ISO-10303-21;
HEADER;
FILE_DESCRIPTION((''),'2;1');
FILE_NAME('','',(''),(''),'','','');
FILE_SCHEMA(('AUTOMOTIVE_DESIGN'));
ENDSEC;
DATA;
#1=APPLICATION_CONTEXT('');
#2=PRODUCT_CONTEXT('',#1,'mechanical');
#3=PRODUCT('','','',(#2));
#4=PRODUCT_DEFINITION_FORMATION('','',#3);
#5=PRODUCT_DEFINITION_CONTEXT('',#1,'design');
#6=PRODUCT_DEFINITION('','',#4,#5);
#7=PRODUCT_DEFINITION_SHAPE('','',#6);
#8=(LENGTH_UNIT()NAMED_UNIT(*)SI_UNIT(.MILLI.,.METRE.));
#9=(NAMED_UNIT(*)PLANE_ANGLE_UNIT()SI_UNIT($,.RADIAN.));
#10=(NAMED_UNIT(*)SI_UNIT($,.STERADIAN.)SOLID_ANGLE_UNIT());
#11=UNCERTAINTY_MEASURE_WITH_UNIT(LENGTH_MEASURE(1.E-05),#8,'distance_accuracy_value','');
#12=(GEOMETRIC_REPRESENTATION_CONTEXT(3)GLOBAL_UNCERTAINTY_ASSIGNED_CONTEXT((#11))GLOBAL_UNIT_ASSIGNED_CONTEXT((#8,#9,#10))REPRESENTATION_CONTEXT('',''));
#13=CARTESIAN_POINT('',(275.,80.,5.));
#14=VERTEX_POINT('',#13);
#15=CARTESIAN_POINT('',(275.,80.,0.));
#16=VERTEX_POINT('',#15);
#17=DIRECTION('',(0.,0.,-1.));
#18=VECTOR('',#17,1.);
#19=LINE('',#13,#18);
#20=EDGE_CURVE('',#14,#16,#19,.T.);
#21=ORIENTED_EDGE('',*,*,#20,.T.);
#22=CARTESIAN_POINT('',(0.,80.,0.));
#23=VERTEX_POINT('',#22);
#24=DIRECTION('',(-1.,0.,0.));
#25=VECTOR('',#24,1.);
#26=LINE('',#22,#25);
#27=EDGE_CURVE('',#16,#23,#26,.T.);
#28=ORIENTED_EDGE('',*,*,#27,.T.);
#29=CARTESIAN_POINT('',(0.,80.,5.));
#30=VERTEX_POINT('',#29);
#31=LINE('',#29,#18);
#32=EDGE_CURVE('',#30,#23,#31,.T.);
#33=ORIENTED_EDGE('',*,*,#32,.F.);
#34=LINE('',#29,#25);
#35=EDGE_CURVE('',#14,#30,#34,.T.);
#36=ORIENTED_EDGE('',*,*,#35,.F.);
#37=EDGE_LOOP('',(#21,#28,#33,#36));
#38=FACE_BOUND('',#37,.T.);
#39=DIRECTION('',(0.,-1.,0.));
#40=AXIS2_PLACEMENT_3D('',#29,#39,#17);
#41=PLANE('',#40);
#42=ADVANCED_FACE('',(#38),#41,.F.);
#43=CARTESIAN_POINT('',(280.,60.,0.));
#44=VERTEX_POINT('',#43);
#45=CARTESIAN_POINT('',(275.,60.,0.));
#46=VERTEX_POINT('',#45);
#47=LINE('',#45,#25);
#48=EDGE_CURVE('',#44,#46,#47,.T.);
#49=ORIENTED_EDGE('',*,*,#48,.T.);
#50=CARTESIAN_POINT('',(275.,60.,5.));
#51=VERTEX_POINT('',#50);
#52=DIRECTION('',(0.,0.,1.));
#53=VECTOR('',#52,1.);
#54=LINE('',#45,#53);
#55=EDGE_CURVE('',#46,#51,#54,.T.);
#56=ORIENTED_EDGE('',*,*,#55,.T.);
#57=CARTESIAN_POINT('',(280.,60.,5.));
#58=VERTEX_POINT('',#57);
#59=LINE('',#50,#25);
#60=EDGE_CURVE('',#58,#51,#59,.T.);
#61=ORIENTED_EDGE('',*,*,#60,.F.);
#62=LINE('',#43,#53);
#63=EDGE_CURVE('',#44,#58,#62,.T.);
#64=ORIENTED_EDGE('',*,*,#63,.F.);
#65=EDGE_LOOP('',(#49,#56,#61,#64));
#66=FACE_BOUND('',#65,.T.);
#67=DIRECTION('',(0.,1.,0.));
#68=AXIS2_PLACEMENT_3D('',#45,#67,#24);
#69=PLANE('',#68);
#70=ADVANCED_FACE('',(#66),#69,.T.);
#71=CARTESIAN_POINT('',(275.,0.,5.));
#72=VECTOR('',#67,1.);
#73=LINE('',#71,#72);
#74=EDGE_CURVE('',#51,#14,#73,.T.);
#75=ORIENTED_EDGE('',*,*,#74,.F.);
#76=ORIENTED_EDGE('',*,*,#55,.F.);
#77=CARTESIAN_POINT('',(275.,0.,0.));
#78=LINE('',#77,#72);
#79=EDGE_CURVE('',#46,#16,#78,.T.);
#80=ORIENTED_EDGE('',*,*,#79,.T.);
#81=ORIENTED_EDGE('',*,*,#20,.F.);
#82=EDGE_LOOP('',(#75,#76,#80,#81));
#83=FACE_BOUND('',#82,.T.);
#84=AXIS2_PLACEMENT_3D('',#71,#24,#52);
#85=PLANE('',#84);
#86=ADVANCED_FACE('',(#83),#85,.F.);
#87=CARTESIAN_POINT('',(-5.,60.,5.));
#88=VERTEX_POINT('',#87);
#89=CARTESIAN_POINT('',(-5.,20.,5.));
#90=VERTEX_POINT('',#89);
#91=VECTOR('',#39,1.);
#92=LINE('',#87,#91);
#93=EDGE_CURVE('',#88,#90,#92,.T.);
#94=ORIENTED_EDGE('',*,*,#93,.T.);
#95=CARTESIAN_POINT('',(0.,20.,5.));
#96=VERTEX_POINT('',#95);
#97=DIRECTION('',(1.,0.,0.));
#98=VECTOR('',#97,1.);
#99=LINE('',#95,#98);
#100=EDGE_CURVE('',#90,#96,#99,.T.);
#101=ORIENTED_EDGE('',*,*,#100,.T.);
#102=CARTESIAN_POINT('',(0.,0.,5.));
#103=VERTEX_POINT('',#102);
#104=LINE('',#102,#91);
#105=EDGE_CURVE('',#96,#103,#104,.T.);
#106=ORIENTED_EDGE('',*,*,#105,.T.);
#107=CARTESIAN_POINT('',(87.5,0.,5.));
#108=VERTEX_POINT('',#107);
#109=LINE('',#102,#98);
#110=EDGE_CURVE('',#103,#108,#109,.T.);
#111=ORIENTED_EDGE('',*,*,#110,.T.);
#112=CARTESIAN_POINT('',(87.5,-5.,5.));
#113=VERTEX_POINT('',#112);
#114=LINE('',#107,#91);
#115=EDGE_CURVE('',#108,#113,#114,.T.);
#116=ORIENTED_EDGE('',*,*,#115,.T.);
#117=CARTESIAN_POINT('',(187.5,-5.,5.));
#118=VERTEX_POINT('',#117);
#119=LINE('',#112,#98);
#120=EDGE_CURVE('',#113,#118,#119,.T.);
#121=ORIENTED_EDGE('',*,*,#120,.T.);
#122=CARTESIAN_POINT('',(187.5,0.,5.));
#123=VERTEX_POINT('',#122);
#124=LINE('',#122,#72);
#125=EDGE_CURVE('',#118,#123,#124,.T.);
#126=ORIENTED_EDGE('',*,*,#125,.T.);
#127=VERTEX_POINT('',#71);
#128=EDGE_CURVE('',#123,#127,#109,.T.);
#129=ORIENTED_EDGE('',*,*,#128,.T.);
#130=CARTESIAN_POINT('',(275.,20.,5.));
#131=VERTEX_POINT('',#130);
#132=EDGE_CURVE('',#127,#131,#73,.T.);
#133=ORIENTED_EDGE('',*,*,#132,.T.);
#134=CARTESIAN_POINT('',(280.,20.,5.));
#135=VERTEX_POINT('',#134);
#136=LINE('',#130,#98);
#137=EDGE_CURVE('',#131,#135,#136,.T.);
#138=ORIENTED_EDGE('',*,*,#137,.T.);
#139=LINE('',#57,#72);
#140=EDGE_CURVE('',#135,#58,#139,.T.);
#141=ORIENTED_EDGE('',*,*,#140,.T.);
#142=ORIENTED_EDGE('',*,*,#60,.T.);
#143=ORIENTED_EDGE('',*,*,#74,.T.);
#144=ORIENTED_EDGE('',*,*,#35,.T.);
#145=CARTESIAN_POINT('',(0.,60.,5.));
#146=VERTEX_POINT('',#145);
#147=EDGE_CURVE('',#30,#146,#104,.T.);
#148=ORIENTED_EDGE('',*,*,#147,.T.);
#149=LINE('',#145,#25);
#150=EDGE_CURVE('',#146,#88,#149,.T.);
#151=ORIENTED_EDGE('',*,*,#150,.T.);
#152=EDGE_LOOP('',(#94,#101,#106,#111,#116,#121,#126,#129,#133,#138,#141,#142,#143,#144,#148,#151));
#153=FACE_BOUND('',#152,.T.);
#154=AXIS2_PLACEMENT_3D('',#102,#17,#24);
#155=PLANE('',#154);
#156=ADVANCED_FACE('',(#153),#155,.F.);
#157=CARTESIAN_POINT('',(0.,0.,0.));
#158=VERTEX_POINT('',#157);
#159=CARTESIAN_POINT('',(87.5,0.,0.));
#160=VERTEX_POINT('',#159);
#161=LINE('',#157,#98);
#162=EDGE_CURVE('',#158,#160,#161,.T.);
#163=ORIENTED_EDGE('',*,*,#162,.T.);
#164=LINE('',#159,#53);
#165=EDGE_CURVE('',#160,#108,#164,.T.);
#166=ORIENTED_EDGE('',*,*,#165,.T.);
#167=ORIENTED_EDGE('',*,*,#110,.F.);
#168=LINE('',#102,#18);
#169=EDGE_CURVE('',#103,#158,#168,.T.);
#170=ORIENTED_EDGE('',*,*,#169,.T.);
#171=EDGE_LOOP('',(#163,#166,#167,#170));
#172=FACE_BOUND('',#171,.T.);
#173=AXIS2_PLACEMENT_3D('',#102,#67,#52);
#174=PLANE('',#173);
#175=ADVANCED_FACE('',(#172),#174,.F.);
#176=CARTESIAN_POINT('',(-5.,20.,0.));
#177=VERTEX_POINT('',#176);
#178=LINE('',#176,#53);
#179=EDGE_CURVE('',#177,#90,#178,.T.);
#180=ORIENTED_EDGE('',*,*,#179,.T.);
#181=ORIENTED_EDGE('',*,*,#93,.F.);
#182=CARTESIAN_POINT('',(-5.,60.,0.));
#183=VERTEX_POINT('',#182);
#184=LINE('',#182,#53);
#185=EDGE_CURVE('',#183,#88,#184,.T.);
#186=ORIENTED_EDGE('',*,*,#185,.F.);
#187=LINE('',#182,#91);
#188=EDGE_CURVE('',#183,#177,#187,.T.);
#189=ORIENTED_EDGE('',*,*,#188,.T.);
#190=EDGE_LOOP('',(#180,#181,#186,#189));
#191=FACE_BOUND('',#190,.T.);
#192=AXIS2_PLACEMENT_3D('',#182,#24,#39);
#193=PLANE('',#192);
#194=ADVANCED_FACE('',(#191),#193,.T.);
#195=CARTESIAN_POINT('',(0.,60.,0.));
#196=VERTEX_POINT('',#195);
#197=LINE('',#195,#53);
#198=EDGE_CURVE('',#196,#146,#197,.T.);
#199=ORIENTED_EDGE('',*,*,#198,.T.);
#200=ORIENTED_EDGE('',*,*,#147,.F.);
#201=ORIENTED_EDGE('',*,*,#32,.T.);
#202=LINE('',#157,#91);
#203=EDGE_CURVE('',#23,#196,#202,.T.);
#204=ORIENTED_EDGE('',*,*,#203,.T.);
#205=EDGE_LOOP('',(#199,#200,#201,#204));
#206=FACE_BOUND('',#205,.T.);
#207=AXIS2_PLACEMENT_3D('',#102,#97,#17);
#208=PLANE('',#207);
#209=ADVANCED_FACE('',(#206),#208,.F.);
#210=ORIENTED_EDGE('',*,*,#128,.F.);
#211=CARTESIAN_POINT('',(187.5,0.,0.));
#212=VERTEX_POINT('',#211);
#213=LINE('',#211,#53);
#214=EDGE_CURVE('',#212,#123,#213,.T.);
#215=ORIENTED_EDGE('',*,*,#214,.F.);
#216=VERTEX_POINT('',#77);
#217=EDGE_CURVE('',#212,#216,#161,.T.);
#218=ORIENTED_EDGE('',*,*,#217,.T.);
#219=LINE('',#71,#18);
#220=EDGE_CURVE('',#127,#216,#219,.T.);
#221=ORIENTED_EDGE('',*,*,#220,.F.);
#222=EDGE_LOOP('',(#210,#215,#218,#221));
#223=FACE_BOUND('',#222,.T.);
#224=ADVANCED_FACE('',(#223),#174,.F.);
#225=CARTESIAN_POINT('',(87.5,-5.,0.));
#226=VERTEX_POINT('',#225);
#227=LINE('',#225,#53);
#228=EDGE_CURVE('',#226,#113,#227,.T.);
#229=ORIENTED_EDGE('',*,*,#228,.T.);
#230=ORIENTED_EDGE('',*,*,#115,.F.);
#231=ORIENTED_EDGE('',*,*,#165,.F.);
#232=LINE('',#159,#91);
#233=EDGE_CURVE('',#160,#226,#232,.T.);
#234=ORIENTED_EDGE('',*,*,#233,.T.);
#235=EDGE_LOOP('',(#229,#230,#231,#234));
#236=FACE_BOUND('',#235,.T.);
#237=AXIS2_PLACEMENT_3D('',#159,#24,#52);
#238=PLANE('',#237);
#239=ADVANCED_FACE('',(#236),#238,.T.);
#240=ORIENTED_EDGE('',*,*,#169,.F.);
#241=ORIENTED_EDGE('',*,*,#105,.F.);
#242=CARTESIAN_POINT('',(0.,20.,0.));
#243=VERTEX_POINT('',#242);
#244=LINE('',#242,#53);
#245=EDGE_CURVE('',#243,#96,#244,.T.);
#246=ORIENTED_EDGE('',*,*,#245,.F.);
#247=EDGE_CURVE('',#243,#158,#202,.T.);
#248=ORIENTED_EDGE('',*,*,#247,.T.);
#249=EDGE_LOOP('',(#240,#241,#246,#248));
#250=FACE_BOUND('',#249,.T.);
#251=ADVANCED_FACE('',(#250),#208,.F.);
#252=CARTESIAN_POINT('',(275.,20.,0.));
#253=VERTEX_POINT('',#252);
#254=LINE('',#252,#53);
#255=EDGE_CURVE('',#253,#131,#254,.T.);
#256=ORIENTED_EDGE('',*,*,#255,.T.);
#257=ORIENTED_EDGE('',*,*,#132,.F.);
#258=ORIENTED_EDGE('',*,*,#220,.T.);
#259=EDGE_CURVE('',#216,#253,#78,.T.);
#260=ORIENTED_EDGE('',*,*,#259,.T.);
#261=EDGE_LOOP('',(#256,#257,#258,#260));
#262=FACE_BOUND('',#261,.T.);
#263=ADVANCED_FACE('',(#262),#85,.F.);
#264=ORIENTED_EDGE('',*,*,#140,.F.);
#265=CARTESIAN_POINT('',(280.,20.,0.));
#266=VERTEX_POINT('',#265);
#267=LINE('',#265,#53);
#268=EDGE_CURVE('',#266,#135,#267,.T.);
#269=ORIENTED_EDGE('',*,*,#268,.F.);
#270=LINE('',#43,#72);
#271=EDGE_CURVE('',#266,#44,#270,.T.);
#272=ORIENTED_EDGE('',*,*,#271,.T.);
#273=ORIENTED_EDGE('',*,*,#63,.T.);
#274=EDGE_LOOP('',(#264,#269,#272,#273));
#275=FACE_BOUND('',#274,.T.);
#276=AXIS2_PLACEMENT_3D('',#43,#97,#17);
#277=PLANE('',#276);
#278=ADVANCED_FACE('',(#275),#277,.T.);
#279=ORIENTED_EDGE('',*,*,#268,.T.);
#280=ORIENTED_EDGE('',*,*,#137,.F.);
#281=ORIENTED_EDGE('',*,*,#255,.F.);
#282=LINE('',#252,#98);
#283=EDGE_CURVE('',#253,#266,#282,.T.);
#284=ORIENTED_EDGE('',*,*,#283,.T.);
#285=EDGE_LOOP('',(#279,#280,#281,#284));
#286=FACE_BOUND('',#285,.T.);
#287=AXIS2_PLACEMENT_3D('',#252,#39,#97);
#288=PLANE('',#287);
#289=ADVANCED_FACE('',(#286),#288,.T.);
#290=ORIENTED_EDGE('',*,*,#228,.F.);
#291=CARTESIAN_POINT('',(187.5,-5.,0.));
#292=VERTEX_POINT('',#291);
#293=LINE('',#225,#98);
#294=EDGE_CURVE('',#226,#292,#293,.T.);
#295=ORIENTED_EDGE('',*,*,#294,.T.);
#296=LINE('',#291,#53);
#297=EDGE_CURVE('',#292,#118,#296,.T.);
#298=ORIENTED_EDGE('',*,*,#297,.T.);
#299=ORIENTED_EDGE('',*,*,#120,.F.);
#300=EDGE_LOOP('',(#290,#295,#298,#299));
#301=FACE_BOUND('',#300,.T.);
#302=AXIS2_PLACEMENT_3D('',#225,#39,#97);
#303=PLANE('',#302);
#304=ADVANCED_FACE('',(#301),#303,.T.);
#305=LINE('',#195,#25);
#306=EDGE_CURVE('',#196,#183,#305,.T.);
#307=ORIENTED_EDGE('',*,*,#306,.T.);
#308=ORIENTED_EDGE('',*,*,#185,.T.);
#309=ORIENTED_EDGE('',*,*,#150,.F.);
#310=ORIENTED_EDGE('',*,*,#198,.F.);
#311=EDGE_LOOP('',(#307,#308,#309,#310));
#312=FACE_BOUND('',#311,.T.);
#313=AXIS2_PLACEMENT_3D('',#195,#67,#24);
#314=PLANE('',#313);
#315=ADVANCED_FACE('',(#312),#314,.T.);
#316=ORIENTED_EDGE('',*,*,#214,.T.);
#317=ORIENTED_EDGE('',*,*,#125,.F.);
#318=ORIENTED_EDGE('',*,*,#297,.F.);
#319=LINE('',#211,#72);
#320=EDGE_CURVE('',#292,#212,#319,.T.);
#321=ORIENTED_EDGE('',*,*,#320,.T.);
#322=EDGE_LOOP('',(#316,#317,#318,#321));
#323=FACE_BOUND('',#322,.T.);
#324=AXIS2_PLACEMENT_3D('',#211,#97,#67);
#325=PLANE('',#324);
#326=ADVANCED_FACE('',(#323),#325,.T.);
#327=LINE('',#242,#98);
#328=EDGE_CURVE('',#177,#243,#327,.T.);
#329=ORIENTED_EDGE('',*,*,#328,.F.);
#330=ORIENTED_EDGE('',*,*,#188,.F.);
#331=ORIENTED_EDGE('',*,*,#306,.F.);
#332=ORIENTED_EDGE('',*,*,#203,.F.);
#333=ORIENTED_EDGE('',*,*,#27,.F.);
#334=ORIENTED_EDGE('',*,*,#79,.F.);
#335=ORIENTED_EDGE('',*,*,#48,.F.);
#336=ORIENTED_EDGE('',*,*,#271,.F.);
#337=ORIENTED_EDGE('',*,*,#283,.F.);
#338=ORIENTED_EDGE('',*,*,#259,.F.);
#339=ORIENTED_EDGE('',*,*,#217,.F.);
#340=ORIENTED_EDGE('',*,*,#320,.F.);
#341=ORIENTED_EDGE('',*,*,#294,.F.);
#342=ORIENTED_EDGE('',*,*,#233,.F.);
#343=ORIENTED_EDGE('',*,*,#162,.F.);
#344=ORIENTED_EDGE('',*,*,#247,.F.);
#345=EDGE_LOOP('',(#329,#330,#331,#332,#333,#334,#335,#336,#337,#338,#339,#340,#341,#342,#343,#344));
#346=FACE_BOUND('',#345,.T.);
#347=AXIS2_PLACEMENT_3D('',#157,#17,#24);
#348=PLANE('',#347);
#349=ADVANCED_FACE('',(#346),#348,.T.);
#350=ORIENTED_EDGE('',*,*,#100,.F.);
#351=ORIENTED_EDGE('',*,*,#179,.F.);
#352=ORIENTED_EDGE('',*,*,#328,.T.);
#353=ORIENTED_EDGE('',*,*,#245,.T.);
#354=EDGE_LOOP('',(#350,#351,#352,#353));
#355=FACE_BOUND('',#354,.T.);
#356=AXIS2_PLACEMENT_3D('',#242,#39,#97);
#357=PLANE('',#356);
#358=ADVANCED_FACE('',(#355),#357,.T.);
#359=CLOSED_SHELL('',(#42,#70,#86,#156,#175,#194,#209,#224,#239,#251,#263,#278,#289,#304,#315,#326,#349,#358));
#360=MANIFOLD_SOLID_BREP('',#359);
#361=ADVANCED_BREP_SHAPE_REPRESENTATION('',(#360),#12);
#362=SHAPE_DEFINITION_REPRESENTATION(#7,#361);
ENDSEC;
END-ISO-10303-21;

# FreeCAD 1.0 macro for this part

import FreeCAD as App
import Part
import Sketcher

V = App.Vector


def add_polygon(sketch, points):
    """Adds a closed chain of lines whose ends are joined by coincident constraints."""
    first, n = sketch.GeometryCount, len(points)
    for a, b in zip(points, points[1:] + points[:1]):
        sketch.addGeometry(Part.LineSegment(App.Vector(*a, 0), App.Vector(*b, 0)), False)
    for i in range(n):
        sketch.addConstraint(Sketcher.Constraint("Coincident", first + i, 2, first + (i + 1) % n, 1))

doc = App.newDocument("Part")
params = doc.addObject("Spreadsheet::Sheet", "Params")
for row, (alias, value) in enumerate([
    ("sketch1_width", "275 mm"),
    ("sketch1_height", "80 mm"),
    ("pad1_length", "5 mm"),
    ("sketch2_width", "100 mm"),
    ("sketch2_height", "5 mm"),
    ("pad2_length", "5 mm"),
    ("sketch3_width", "5 mm"),
    ("sketch3_height", "40 mm"),
], start=1):
    params.set(f"A{row}", alias)
    params.set(f"B{row}", "=" + value)
    params.setAlias(f"B{row}", alias)

body = doc.addObject("PartDesign::Body", "Body")

# Sketch on XY plane
sketch1 = doc.addObject("Sketcher::SketchObject", "Sketch")
body.addObject(sketch1)
sketch1.AttachmentSupport = (doc.XY_Plane, [""])
sketch1.MapMode = "FlatFace"
add_polygon(sketch1, [(0, 80), (0, 0), (275, 0), (275, 80)])  # lines 0-3
sketch1.addConstraint(Sketcher.Constraint("Vertical", 0))
sketch1.addConstraint(Sketcher.Constraint("Horizontal", 1))
sketch1.addConstraint(Sketcher.Constraint("Vertical", 2))
sketch1.addConstraint(Sketcher.Constraint("Horizontal", 3))
sketch1.addConstraint(Sketcher.Constraint("Coincident", 0, 2, -1, 1))
sketch1.addConstraint(Sketcher.Constraint("DistanceX", 1, 1, 1, 2, 275.0))
sketch1.addConstraint(Sketcher.Constraint("DistanceY", 0, 2, 0, 1, 80.0))
sketch1.setExpression("Constraints[9]", "Params.sketch1_width")
sketch1.setExpression("Constraints[10]", "Params.sketch1_height")
pad1 = doc.addObject("PartDesign::Pad", "Pad")
body.addObject(pad1)
pad1.Profile = sketch1
pad1.setExpression("Length", "Params.pad1_length")

# Sketch on XY plane
sketch2 = doc.addObject("Sketcher::SketchObject", "Sketch001")
body.addObject(sketch2)
sketch2.AttachmentSupport = (doc.XY_Plane, [""])
sketch2.MapMode = "FlatFace"
sketch2.AttachmentOffset = App.Placement(V(0, 0, 5), App.Rotation())
add_polygon(sketch2, [(88, 0), (88, -5), (188, -5), (188, 0)])  # lines 0-3
sketch2.addConstraint(Sketcher.Constraint("Vertical", 0))
sketch2.addConstraint(Sketcher.Constraint("Horizontal", 1))
sketch2.addConstraint(Sketcher.Constraint("Vertical", 2))
sketch2.addConstraint(Sketcher.Constraint("Horizontal", 3))
sketch2.addConstraint(Sketcher.Constraint("PointOnObject", 2, 2, -1))
sketch2.addConstraint(Sketcher.Constraint("DistanceX", 1, 1, 1, 2, 100.0))
sketch2.addConstraint(Sketcher.Constraint("DistanceY", 0, 2, 0, 1, 5.0))
sketch2.addConstraint(Sketcher.Constraint("DistanceX", -1, 1, 0, 2, 87.5))
sketch2.setExpression("Constraints[9]", "Params.sketch2_width")
sketch2.setExpression("Constraints[10]", "Params.sketch2_height")
pad2 = doc.addObject("PartDesign::Pad", "Pad001")
body.addObject(pad2)
pad2.Profile = sketch2
pad2.setExpression("Length", "Params.pad2_length")
pad2.Reversed = True

# Sketch on XY plane
sketch3 = doc.addObject("Sketcher::SketchObject", "Sketch002")
body.addObject(sketch3)
sketch3.AttachmentSupport = (doc.XY_Plane, [""])
sketch3.MapMode = "FlatFace"
sketch3.AttachmentOffset = App.Placement(V(0, 0, 5), App.Rotation())
add_polygon(sketch3, [(-5, 60), (-5, 20), (0, 20), (0, 60)])  # lines 0-3
add_polygon(sketch3, [(275, 60), (275, 20), (280, 20), (280, 60)])  # lines 4-7
sketch3.addConstraint(Sketcher.Constraint("Vertical", 0))
sketch3.addConstraint(Sketcher.Constraint("Horizontal", 1))
sketch3.addConstraint(Sketcher.Constraint("Vertical", 2))
sketch3.addConstraint(Sketcher.Constraint("Horizontal", 3))
sketch3.addConstraint(Sketcher.Constraint("Vertical", 4))
sketch3.addConstraint(Sketcher.Constraint("Horizontal", 5))
sketch3.addConstraint(Sketcher.Constraint("Vertical", 6))
sketch3.addConstraint(Sketcher.Constraint("Horizontal", 7))
sketch3.addConstraint(Sketcher.Constraint("PointOnObject", 1, 2, -2))
sketch3.addConstraint(Sketcher.Constraint("Horizontal", 1, 2, 4, 2))
sketch3.addConstraint(Sketcher.Constraint("Horizontal", 3, 2, 6, 2))
sketch3.addConstraint(Sketcher.Constraint("Equal", 3, 5))
sketch3.addConstraint(Sketcher.Constraint("DistanceX", 1, 1, 1, 2, 5.0))
sketch3.addConstraint(Sketcher.Constraint("DistanceY", 0, 2, 0, 1, 40.0))
sketch3.addConstraint(Sketcher.Constraint("DistanceY", -1, 1, 0, 2, 20.0))
sketch3.addConstraint(Sketcher.Constraint("DistanceX", -1, 1, 4, 2, 275.0))
sketch3.setExpression("Constraints[20]", "Params.sketch3_width")
sketch3.setExpression("Constraints[21]", "Params.sketch3_height")
pad3 = doc.addObject("PartDesign::Pad", "Pad002")
body.addObject(pad3)
pad3.Profile = sketch3
pad3.Type = "UpToLast"
pad3.Reversed = True

doc.recompute()
